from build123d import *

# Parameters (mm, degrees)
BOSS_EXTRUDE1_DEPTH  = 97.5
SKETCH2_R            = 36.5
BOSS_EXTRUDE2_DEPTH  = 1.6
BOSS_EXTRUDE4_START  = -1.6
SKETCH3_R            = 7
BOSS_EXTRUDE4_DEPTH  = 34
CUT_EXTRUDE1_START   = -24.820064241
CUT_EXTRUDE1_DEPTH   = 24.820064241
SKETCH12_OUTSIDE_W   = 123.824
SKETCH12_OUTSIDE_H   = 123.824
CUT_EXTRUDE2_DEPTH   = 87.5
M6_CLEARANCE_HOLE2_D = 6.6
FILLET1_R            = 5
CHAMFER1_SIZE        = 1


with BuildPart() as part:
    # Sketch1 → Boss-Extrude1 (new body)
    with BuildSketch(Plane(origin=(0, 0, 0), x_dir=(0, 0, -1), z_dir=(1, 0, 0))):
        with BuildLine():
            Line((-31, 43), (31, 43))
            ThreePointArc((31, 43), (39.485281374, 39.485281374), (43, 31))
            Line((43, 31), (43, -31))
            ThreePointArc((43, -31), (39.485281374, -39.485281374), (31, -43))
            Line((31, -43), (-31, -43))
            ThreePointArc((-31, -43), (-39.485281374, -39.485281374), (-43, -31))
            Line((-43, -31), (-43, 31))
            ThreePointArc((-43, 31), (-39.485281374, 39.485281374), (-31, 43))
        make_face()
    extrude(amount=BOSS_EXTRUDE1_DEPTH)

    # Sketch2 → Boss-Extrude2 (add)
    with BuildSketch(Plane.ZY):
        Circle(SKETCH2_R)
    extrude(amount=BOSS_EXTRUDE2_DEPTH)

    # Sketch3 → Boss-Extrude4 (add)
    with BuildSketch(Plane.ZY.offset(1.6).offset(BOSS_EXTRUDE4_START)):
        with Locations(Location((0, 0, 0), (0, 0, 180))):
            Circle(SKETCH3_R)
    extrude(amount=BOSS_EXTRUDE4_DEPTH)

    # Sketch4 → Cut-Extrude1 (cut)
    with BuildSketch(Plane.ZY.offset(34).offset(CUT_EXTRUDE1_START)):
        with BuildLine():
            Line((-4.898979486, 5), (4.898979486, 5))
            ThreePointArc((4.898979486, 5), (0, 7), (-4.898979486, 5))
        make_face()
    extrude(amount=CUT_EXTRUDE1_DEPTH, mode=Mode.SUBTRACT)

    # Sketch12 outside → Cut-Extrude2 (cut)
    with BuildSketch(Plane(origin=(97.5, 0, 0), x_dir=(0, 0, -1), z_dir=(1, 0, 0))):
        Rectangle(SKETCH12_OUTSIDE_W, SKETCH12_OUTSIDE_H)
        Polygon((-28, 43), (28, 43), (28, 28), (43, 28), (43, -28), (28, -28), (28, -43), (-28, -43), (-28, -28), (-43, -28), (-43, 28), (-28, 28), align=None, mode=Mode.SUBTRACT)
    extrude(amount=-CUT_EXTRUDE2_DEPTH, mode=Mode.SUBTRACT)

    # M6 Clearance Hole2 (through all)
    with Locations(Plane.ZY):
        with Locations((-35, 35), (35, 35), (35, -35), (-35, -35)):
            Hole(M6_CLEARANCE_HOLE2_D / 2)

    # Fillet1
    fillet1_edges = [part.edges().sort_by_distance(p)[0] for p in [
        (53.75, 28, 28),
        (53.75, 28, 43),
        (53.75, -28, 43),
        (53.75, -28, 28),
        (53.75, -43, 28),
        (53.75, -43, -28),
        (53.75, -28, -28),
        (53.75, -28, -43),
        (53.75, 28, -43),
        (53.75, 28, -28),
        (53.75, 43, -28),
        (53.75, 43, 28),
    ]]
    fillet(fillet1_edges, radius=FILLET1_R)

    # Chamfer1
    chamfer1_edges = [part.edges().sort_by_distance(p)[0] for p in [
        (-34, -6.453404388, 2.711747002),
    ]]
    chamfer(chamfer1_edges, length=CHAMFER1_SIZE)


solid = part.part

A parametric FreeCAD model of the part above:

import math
import FreeCAD as App
import Part
import Sketcher
from FreeCAD import Vector
Q = App.Units.Quantity


def edges_at(feature, points):
    """Names of the edges that pass closest to the given points."""
    edges = feature.Shape.Edges
    near = lambda p: min(range(len(edges)), key=lambda i: edges[i].distToShape(Part.Vertex(*p))[0])
    return sorted({f"Edge{near(p) + 1}" for p in points})

doc = App.newDocument("Part")
params = doc.addObject("Spreadsheet::Sheet", "Params")
for row, (alias, value) in enumerate([
    ("sketch1_radius", "12 mm"),
    ("sketch1_width", "62 mm"),
    ("pad1_length", "97.5 mm"),
    ("sketch2_diameter", "73 mm"),
    ("pad2_length", "1.6 mm"),
    ("sketch3_diameter", "14 mm"),
    ("pad3_length", "34 mm"),
    ("sketch4_radius", "7 mm"),
    ("pocket1_length", "24.820064 mm"),
    ("sketch5_width", "15 mm"),
    ("sketch5_width2", "56 mm"),
    ("pocket2_length", "87.5 mm"),
    ("sketch6_diameter", "6.6 mm"),
    ("hole_diameter", "6.6 mm"),
    ("fillet_radius", "5 mm"),
    ("chamfer_size", "1 mm"),
], start=1):
    params.set(f"A{row}", alias)
    params.set(f"B{row}", "=" + value)
    params.setAlias(f"B{row}", alias)

body = doc.addObject("PartDesign::Body", "Body")

# Sketch on YZ plane
sketch1 = body.newObject("Sketcher::SketchObject", "Sketch")
sketch1.AttachmentSupport = (doc.getObject("YZ_Plane"), [""])
sketch1.MapMode = "FlatFace"
sketch1.addGeometry(Part.LineSegment(Vector(43, -31, 0), Vector(43, 31, 0)), False)
sketch1.addGeometry(Part.ArcOfCircle(Part.Circle(Vector(31, 31, 0), Vector(0, 0, 1), 12), math.radians(0), math.radians(90)), False)
sketch1.addGeometry(Part.LineSegment(Vector(31, 43, 0), Vector(-31, 43, 0)), False)
sketch1.addGeometry(Part.ArcOfCircle(Part.Circle(Vector(-31, 31, 0), Vector(0, 0, 1), 12), math.radians(90), math.radians(180)), False)
sketch1.addGeometry(Part.LineSegment(Vector(-43, 31, 0), Vector(-43, -31, 0)), False)
sketch1.addGeometry(Part.ArcOfCircle(Part.Circle(Vector(-31, -31, 0), Vector(0, 0, 1), 12), math.radians(-180), math.radians(-90)), False)
sketch1.addGeometry(Part.LineSegment(Vector(-31, -43, 0), Vector(31, -43, 0)), False)
sketch1.addGeometry(Part.ArcOfCircle(Part.Circle(Vector(31, -31, 0), Vector(0, 0, 1), 12), math.radians(-90), math.radians(0)), False)
sketch1.addConstraint(Sketcher.Constraint("Tangent", 0, 2, 1, 1))
sketch1.addConstraint(Sketcher.Constraint("Tangent", 1, 2, 2, 1))
sketch1.addConstraint(Sketcher.Constraint("Tangent", 2, 2, 3, 1))
sketch1.addConstraint(Sketcher.Constraint("Tangent", 3, 2, 4, 1))
sketch1.addConstraint(Sketcher.Constraint("Tangent", 4, 2, 5, 1))
sketch1.addConstraint(Sketcher.Constraint("Tangent", 5, 2, 6, 1))
sketch1.addConstraint(Sketcher.Constraint("Tangent", 6, 2, 7, 1))
sketch1.addConstraint(Sketcher.Constraint("Tangent", 7, 2, 0, 1))
sketch1.addConstraint(Sketcher.Constraint("Vertical", 0))
sketch1.addConstraint(Sketcher.Constraint("Horizontal", 2))
sketch1.addConstraint(Sketcher.Constraint("Vertical", 4))
sketch1.addConstraint(Sketcher.Constraint("Horizontal", 6))
sketch1.addConstraint(Sketcher.Constraint("Equal", 1, 3))
sketch1.addConstraint(Sketcher.Constraint("Equal", 3, 5))
sketch1.addConstraint(Sketcher.Constraint("Equal", 5, 7))
sketch1.addConstraint(Sketcher.Constraint("Symmetric", 1, 3, 5, 3, -1, 1))
sketch1.addConstraint(Sketcher.Constraint("Equal", 6, 0))
sketch1.addConstraint(Sketcher.Constraint("Radius", 1, Q("12 mm")))
sketch1.addConstraint(Sketcher.Constraint("DistanceX", 2, 2, 2, 1, Q("62 mm")))
sketch1.setExpression("Constraints[17]", "Params.sketch1_radius")
sketch1.setExpression("Constraints[18]", "Params.sketch1_width")
pad1 = body.newObject("PartDesign::Pad", "Pad")
pad1.Profile = sketch1
pad1.setExpression("Length", "Params.pad1_length")

# Sketch on YZ plane
sketch2 = body.newObject("Sketcher::SketchObject", "Sketch001")
sketch2.AttachmentSupport = (doc.getObject("YZ_Plane"), [""])
sketch2.MapMode = "FlatFace"
sketch2.addGeometry(Part.Circle(Vector(0, 0, 0), Vector(0, 0, 1), 36), False)
sketch2.addConstraint(Sketcher.Constraint("Coincident", 0, 3, -1, 1))
sketch2.addConstraint(Sketcher.Constraint("Diameter", 0, Q("73 mm")))
sketch2.setExpression("Constraints[1]", "Params.sketch2_diameter")
pad2 = body.newObject("PartDesign::Pad", "Pad001")
pad2.Profile = sketch2
pad2.setExpression("Length", "Params.pad2_length")
pad2.Reversed = True

# Sketch on YZ plane
sketch3 = body.newObject("Sketcher::SketchObject", "Sketch002")
sketch3.AttachmentSupport = (doc.getObject("YZ_Plane"), [""])
sketch3.MapMode = "FlatFace"
sketch3.addGeometry(Part.Circle(Vector(0, 0, 0), Vector(0, 0, 1), 7), False)
sketch3.addConstraint(Sketcher.Constraint("Coincident", 0, 3, -1, 1))
sketch3.addConstraint(Sketcher.Constraint("Diameter", 0, Q("14 mm")))
sketch3.setExpression("Constraints[1]", "Params.sketch3_diameter")
pad3 = body.newObject("PartDesign::Pad", "Pad002")
pad3.Profile = sketch3
pad3.setExpression("Length", "Params.pad3_length")
pad3.Reversed = True

# Sketch on YZ plane
sketch4 = body.newObject("Sketcher::SketchObject", "Sketch003")
sketch4.AttachmentSupport = (doc.getObject("YZ_Plane"), [""])
sketch4.MapMode = "FlatFace"
sketch4.AttachmentOffset = App.Placement(Vector(0, 0, -9.179936), App.Rotation())
sketch4.addGeometry(Part.LineSegment(Vector(5, -5, 0), Vector(5, 5, 0)), False)
sketch4.addGeometry(Part.ArcOfCircle(Part.Circle(Vector(0, 0, 0), Vector(0, 0, 1), 7), math.radians(-44), math.radians(44)), False)
sketch4.addConstraint(Sketcher.Constraint("Coincident", 0, 1, 1, 1))
sketch4.addConstraint(Sketcher.Constraint("Coincident", 1, 2, 0, 2))
sketch4.addConstraint(Sketcher.Constraint("Vertical", 0))
sketch4.addConstraint(Sketcher.Constraint("Coincident", 1, 3, -1, 1))
sketch4.addConstraint(Sketcher.Constraint("Radius", 1, Q("7 mm")))
sketch4.addConstraint(Sketcher.Constraint("DistanceX", -1, 1, 0, 1, Q("5 mm")))
sketch4.setExpression("Constraints[4]", "Params.sketch4_radius")
pocket1 = body.newObject("PartDesign::Pocket", "Pocket")
pocket1.Profile = sketch4
pocket1.setExpression("Length", "Params.pocket1_length")

# Sketch on YZ plane
sketch5 = body.newObject("Sketcher::SketchObject", "Sketch004")
sketch5.AttachmentSupport = (doc.getObject("YZ_Plane"), [""])
sketch5.MapMode = "FlatFace"
sketch5.AttachmentOffset = App.Placement(Vector(0, 0, 97.5), App.Rotation())
sketch5.addGeometry(Part.LineSegment(Vector(62, 62, 0), Vector(-62, 62, 0)), False)
sketch5.addGeometry(Part.LineSegment(Vector(-62, 62, 0), Vector(-62, -62, 0)), False)
sketch5.addGeometry(Part.LineSegment(Vector(-62, -62, 0), Vector(62, -62, 0)), False)
sketch5.addGeometry(Part.LineSegment(Vector(62, -62, 0), Vector(62, 62, 0)), False)
sketch5.addGeometry(Part.LineSegment(Vector(28, 28, 0), Vector(43, 28, 0)), False)
sketch5.addGeometry(Part.LineSegment(Vector(43, 28, 0), Vector(43, -28, 0)), False)
sketch5.addGeometry(Part.LineSegment(Vector(43, -28, 0), Vector(28, -28, 0)), False)
sketch5.addGeometry(Part.LineSegment(Vector(28, -28, 0), Vector(28, -43, 0)), False)
sketch5.addGeometry(Part.LineSegment(Vector(28, -43, 0), Vector(-28, -43, 0)), False)
sketch5.addGeometry(Part.LineSegment(Vector(-28, -43, 0), Vector(-28, -28, 0)), False)
sketch5.addGeometry(Part.LineSegment(Vector(-28, -28, 0), Vector(-43, -28, 0)), False)
sketch5.addGeometry(Part.LineSegment(Vector(-43, -28, 0), Vector(-43, 28, 0)), False)
sketch5.addGeometry(Part.LineSegment(Vector(-43, 28, 0), Vector(-28, 28, 0)), False)
sketch5.addGeometry(Part.LineSegment(Vector(-28, 28, 0), Vector(-28, 43, 0)), False)
sketch5.addGeometry(Part.LineSegment(Vector(-28, 43, 0), Vector(28, 43, 0)), False)
sketch5.addGeometry(Part.LineSegment(Vector(28, 43, 0), Vector(28, 28, 0)), False)
sketch5.addConstraint(Sketcher.Constraint("Coincident", 0, 2, 1, 1))
sketch5.addConstraint(Sketcher.Constraint("Coincident", 1, 2, 2, 1))
sketch5.addConstraint(Sketcher.Constraint("Coincident", 2, 2, 3, 1))
sketch5.addConstraint(Sketcher.Constraint("Coincident", 3, 2, 0, 1))
sketch5.addConstraint(Sketcher.Constraint("Coincident", 4, 2, 5, 1))
sketch5.addConstraint(Sketcher.Constraint("Coincident", 5, 2, 6, 1))
sketch5.addConstraint(Sketcher.Constraint("Coincident", 6, 2, 7, 1))
sketch5.addConstraint(Sketcher.Constraint("Coincident", 7, 2, 8, 1))
sketch5.addConstraint(Sketcher.Constraint("Coincident", 8, 2, 9, 1))
sketch5.addConstraint(Sketcher.Constraint("Coincident", 9, 2, 10, 1))
sketch5.addConstraint(Sketcher.Constraint("Coincident", 10, 2, 11, 1))
sketch5.addConstraint(Sketcher.Constraint("Coincident", 11, 2, 12, 1))
sketch5.addConstraint(Sketcher.Constraint("Coincident", 12, 2, 13, 1))
sketch5.addConstraint(Sketcher.Constraint("Coincident", 13, 2, 14, 1))
sketch5.addConstraint(Sketcher.Constraint("Coincident", 14, 2, 15, 1))
sketch5.addConstraint(Sketcher.Constraint("Coincident", 15, 2, 4, 1))
sketch5.addConstraint(Sketcher.Constraint("Horizontal", 0))
sketch5.addConstraint(Sketcher.Constraint("Vertical", 1))
sketch5.addConstraint(Sketcher.Constraint("Horizontal", 2))
sketch5.addConstraint(Sketcher.Constraint("Vertical", 3))
sketch5.addConstraint(Sketcher.Constraint("Horizontal", 4))
sketch5.addConstraint(Sketcher.Constraint("Vertical", 5))
sketch5.addConstraint(Sketcher.Constraint("Horizontal", 6))
sketch5.addConstraint(Sketcher.Constraint("Vertical", 7))
sketch5.addConstraint(Sketcher.Constraint("Horizontal", 8))
sketch5.addConstraint(Sketcher.Constraint("Vertical", 9))
sketch5.addConstraint(Sketcher.Constraint("Horizontal", 10))
sketch5.addConstraint(Sketcher.Constraint("Vertical", 11))
sketch5.addConstraint(Sketcher.Constraint("Horizontal", 12))
sketch5.addConstraint(Sketcher.Constraint("Vertical", 13))
sketch5.addConstraint(Sketcher.Constraint("Horizontal", 14))
sketch5.addConstraint(Sketcher.Constraint("Vertical", 15))
sketch5.addConstraint(Sketcher.Constraint("Symmetric", 0, 2, 2, 2, -1, 1))
sketch5.addConstraint(Sketcher.Constraint("Symmetric", 4, 2, 10, 2, -1, 1))
sketch5.addConstraint(Sketcher.Constraint("Symmetric", 6, 2, 12, 2, -1, 1))
sketch5.addConstraint(Sketcher.Constraint("Symmetric", 8, 2, 14, 2, -1, 1))
sketch5.addConstraint(Sketcher.Constraint("Symmetric", 6, 2, 9, 2, -2))
sketch5.addConstraint(Sketcher.Constraint("Equal", 2, 1))
sketch5.addConstraint(Sketcher.Constraint("Equal", 14, 5))
sketch5.addConstraint(Sketcher.Constraint("Equal", 12, 7))
sketch5.addConstraint(Sketcher.Constraint("DistanceX", 4, 1, 4, 2, Q("15 mm")))
sketch5.addConstraint(Sketcher.Constraint("DistanceX", 8, 2, 8, 1, Q("56 mm")))
sketch5.addConstraint(Sketcher.Constraint("DistanceX", 0, 2, 0, 1, Q("123.824 mm")))
sketch5.setExpression("Constraints[40]", "Params.sketch5_width")
sketch5.setExpression("Constraints[41]", "Params.sketch5_width2")
pocket2 = body.newObject("PartDesign::Pocket", "Pocket001")
pocket2.Profile = sketch5
pocket2.setExpression("Length", "Params.pocket2_length")

# Sketch on YZ plane
sketch6 = body.newObject("Sketcher::SketchObject", "Sketch005")
sketch6.AttachmentSupport = (doc.getObject("YZ_Plane"), [""])
sketch6.MapMode = "FlatFace"
sketch6.addGeometry(Part.Circle(Vector(35, -35, 0), Vector(0, 0, 1), 3.3), False)
sketch6.addGeometry(Part.Circle(Vector(35, 35, 0), Vector(0, 0, 1), 3.3), False)
sketch6.addGeometry(Part.Circle(Vector(-35, 35, 0), Vector(0, 0, 1), 3.3), False)
sketch6.addGeometry(Part.Circle(Vector(-35, -35, 0), Vector(0, 0, 1), 3.3), False)
sketch6.addConstraint(Sketcher.Constraint("Equal", 0, 1))
sketch6.addConstraint(Sketcher.Constraint("Equal", 1, 2))
sketch6.addConstraint(Sketcher.Constraint("Equal", 2, 3))
sketch6.addConstraint(Sketcher.Constraint("Symmetric", 0, 3, 2, 3, -1, 1))
sketch6.addConstraint(Sketcher.Constraint("Symmetric", 1, 3, 3, 3, -1, 1))
sketch6.addConstraint(Sketcher.Constraint("Symmetric", 1, 3, 2, 3, -2))
sketch6.addConstraint(Sketcher.Constraint("Diameter", 0, Q("6.6 mm")))
sketch6.addConstraint(Sketcher.Constraint("DistanceX", -1, 1, 0, 3, Q("35 mm")))
sketch6.addConstraint(Sketcher.Constraint("DistanceY", 0, 3, -1, 1, Q("35 mm")))
sketch6.setExpression("Constraints[6]", "Params.sketch6_diameter")
doc.recompute()
hole = body.newObject("PartDesign::Hole", "Hole")
hole.Profile = sketch6
hole.ThreadType = "None"
hole.setExpression("Diameter", "Params.hole_diameter")
hole.DepthType = "ThroughAll"
hole.Reversed = True
doc.recompute()

fillet = body.newObject("PartDesign::Fillet", "Fillet")
fillet.Base = (hole, edges_at(hole, [
    (53.75, 28, 28),
    (53.75, 28, 43),
    (53.75, -28, 43),
    (53.75, -28, 28),
    (53.75, -43, 28),
    (53.75, -43, -28),
    (53.75, -28, -28),
    (53.75, -28, -43),
    (53.75, 28, -43),
    (53.75, 28, -28),
    (53.75, 43, -28),
    (53.75, 43, 28),
]))
fillet.setExpression("Radius", "Params.fillet_radius")
doc.recompute()

chamfer = body.newObject("PartDesign::Chamfer", "Chamfer")
chamfer.Base = (fillet, edges_at(fillet, [(-34, -6.453, 2.712)]))
chamfer.setExpression("Size", "Params.chamfer_size")

doc.recompute()
